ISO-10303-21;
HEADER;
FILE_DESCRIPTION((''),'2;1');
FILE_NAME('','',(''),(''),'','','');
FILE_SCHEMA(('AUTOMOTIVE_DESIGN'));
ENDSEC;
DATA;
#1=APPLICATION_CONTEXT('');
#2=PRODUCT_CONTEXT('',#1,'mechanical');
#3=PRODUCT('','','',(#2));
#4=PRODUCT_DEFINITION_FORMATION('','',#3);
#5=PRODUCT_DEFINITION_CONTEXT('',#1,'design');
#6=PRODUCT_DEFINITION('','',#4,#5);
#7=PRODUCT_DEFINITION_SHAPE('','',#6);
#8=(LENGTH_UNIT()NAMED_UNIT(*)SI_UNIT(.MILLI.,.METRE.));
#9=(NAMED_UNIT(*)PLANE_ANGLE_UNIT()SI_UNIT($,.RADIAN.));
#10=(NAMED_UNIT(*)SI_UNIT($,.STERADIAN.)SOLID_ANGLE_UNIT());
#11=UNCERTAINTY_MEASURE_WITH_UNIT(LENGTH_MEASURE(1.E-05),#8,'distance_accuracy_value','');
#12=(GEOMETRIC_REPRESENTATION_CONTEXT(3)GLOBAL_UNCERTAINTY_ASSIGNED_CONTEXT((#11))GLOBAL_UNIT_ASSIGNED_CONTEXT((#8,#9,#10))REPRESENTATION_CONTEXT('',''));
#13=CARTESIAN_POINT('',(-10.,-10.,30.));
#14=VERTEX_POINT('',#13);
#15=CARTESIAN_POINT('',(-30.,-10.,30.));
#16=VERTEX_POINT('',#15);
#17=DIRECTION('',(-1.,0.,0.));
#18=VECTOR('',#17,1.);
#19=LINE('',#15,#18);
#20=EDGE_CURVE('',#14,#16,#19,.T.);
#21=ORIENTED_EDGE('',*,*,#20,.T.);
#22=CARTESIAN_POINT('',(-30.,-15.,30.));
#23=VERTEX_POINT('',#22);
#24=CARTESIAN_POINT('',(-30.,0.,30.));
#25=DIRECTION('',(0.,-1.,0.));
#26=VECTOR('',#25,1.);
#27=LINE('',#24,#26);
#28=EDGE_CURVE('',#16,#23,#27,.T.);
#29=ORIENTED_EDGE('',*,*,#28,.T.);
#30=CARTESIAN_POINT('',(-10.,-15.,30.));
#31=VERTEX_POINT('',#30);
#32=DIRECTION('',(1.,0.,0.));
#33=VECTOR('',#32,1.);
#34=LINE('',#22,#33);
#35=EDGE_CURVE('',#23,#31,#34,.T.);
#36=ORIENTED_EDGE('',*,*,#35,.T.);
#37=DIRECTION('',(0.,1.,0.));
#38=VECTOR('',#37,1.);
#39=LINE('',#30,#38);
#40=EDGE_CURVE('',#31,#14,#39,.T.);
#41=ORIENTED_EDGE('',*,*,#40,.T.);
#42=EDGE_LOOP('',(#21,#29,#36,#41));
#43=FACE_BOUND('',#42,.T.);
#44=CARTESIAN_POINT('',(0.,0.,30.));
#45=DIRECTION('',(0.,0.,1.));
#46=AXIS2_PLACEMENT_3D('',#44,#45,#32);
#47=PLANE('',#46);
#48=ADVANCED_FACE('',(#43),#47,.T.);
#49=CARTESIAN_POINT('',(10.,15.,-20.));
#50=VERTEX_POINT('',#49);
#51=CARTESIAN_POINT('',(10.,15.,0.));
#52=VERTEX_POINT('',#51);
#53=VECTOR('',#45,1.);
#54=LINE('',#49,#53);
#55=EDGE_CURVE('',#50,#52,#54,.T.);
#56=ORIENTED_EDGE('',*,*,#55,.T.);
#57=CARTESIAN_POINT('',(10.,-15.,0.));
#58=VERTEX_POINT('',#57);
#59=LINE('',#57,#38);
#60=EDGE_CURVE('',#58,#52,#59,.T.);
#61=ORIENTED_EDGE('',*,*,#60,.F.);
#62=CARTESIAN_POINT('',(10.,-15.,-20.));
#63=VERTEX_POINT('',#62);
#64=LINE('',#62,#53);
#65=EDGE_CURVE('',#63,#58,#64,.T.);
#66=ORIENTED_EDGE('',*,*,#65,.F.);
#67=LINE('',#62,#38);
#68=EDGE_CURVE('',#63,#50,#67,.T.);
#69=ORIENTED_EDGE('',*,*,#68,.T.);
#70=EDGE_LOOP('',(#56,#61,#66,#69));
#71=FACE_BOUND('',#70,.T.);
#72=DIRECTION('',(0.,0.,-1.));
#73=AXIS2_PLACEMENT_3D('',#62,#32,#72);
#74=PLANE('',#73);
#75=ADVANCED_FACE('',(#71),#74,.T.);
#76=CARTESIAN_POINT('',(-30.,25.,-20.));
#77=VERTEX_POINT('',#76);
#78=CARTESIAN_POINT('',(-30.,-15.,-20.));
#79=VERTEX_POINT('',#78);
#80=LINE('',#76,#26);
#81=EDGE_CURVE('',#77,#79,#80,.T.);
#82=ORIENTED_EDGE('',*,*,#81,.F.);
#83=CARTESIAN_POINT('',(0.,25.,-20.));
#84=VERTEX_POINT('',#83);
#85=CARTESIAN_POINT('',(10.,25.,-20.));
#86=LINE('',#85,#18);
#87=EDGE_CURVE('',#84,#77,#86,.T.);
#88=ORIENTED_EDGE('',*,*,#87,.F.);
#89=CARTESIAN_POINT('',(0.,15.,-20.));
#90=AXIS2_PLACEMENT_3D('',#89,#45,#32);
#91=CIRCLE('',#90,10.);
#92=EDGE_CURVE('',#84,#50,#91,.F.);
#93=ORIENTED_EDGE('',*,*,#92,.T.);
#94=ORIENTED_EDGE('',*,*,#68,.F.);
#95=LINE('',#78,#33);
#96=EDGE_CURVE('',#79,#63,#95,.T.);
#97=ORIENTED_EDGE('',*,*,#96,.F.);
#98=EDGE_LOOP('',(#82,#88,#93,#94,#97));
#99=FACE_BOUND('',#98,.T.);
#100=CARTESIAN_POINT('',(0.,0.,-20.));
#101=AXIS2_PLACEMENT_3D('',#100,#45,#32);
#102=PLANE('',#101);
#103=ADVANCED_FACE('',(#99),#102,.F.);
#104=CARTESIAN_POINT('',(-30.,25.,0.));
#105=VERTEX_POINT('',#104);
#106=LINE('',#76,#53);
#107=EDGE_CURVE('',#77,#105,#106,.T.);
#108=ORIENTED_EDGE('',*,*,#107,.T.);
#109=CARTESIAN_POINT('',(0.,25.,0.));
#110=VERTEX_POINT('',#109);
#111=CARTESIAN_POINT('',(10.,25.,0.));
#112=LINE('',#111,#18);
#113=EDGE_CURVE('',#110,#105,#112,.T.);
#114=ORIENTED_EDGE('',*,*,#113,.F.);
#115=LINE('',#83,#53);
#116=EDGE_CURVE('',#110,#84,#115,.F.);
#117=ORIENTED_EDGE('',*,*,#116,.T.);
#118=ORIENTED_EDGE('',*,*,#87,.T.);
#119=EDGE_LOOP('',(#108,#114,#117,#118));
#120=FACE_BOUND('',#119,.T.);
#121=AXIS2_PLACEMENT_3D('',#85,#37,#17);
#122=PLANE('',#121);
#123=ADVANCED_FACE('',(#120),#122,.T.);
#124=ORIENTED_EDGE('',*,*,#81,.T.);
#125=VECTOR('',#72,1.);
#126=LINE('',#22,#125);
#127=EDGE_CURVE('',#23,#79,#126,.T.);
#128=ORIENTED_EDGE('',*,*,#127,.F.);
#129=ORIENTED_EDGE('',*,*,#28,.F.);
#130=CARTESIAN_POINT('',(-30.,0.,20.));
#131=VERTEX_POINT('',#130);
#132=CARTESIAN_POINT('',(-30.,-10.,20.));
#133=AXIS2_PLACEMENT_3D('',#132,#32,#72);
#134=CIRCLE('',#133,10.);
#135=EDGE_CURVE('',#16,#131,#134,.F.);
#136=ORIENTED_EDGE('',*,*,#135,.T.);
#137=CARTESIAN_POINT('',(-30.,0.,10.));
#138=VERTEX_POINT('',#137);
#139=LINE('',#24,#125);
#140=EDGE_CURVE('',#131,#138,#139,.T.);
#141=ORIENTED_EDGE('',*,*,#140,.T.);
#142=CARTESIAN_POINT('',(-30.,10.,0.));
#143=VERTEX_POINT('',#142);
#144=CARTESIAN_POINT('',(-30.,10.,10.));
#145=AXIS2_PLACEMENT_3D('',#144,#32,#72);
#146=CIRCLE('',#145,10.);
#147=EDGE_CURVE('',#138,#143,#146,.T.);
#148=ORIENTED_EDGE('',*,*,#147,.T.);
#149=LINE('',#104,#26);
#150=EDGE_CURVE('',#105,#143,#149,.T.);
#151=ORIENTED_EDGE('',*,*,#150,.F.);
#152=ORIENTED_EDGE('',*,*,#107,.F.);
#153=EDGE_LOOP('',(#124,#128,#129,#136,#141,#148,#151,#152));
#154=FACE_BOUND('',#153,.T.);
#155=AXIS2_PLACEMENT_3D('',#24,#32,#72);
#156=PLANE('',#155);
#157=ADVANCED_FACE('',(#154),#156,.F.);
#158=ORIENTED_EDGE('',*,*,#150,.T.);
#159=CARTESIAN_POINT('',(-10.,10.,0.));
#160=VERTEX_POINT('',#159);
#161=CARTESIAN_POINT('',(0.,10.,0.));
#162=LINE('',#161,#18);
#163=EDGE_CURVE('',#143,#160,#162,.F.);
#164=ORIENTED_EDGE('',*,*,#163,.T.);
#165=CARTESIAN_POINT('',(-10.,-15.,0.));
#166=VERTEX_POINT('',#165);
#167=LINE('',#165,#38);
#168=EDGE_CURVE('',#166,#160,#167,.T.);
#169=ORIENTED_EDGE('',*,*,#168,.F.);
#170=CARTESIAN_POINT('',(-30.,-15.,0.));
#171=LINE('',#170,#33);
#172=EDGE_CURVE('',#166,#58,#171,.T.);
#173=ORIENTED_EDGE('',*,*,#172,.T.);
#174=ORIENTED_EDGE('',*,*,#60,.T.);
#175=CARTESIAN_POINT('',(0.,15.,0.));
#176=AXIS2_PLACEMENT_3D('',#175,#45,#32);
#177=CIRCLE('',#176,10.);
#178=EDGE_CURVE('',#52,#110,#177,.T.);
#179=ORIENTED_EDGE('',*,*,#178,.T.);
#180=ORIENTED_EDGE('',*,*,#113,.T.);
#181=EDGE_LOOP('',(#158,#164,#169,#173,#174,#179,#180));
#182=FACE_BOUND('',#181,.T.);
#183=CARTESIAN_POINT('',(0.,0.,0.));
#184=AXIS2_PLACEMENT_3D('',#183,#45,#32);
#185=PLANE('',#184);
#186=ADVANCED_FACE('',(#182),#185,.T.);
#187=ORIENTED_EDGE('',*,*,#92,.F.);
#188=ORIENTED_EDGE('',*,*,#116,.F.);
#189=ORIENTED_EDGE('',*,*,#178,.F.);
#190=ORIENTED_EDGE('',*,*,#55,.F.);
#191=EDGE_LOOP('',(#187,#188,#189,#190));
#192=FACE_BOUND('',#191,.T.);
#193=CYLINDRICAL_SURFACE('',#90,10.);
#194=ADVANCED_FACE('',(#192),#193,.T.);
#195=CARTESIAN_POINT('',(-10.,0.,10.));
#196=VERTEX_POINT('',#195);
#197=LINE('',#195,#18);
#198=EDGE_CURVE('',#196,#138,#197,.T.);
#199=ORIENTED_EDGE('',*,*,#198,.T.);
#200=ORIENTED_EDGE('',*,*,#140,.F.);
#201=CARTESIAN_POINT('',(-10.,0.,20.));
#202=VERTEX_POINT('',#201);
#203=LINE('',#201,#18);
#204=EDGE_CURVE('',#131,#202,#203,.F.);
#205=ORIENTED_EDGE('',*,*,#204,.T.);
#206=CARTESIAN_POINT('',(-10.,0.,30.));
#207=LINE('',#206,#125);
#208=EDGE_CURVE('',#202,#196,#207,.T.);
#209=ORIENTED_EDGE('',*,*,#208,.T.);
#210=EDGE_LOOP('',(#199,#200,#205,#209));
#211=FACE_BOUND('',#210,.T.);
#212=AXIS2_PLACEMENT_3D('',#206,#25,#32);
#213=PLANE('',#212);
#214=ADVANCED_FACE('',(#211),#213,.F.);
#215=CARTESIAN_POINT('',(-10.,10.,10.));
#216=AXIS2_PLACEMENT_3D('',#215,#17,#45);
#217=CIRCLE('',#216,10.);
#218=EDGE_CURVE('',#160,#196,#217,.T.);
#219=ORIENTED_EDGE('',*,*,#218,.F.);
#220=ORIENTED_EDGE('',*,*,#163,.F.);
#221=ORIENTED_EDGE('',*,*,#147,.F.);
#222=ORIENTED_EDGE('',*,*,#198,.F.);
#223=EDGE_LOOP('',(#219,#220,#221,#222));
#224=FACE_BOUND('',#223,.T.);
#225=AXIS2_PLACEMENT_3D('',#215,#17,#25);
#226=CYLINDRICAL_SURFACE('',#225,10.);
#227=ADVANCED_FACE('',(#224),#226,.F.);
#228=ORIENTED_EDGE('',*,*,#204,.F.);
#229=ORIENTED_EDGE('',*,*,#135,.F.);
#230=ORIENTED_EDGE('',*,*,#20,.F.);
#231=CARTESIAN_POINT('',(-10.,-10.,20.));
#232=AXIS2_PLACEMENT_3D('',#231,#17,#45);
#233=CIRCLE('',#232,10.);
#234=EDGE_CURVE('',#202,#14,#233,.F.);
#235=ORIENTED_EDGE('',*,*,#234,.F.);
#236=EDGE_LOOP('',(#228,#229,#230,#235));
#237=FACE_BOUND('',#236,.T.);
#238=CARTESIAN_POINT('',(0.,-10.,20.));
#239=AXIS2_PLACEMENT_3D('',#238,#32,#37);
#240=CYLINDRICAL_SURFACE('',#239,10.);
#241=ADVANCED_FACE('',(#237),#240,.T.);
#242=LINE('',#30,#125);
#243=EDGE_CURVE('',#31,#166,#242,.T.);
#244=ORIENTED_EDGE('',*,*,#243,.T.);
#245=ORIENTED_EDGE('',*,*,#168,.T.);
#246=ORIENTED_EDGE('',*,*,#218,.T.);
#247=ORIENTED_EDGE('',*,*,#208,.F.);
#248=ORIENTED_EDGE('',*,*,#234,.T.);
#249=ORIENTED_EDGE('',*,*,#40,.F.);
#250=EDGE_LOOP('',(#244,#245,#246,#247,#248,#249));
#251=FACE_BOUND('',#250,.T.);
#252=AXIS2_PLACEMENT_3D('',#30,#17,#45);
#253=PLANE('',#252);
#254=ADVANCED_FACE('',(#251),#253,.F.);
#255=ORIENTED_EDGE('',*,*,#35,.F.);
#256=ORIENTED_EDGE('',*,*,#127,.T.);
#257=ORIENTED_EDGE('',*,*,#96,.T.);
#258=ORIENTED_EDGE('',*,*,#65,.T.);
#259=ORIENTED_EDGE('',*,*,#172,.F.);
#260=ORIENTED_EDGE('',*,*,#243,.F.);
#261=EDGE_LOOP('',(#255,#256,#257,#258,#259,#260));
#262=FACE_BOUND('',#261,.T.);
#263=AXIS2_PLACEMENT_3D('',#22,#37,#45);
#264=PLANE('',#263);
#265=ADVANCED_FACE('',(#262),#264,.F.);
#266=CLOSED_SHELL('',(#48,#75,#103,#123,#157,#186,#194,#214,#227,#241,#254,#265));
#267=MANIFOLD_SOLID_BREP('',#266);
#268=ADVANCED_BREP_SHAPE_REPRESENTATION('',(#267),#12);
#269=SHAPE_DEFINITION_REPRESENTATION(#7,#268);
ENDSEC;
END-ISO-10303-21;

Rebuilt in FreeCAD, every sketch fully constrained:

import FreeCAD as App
import Part
import Sketcher
from FreeCAD import Vector
Q = App.Units.Quantity


def edges_at(feature, points):
    """Names of the edges that pass closest to the given points."""
    edges = feature.Shape.Edges
    near = lambda p: min(range(len(edges)), key=lambda i: edges[i].distToShape(Part.Vertex(*p))[0])
    return sorted({f"Edge{near(p) + 1}" for p in points})

doc = App.newDocument("Part")
body = doc.addObject("PartDesign::Body", "Body")

# Sketch on XY plane
sketch1 = doc.addObject("Sketcher::SketchObject", "Sketch")
body.addObject(sketch1)
sketch1.AttachmentSupport = (doc.XY_Plane, [""])
sketch1.MapMode = "FlatFace"
sketch1.addGeometry([
    Part.LineSegment(Vector(-30, 0, 0), Vector(-30, -15, 0)),
    Part.LineSegment(Vector(-30, -15, 0), Vector(-10, -15, 0)),
    Part.LineSegment(Vector(-10, -15, 0), Vector(-10, 0, 0)),
    Part.LineSegment(Vector(-10, 0, 0), Vector(-30, 0, 0)),
], False)
sketch1.addConstraint([
    Sketcher.Constraint("Coincident", 0, 2, 1, 1),
    Sketcher.Constraint("Coincident", 1, 2, 2, 1),
    Sketcher.Constraint("Coincident", 2, 2, 3, 1),
    Sketcher.Constraint("Coincident", 3, 2, 0, 1),
    Sketcher.Constraint("Vertical", 0),
    Sketcher.Constraint("Horizontal", 1),
    Sketcher.Constraint("Vertical", 2),
    Sketcher.Constraint("Horizontal", 3),
    Sketcher.Constraint("PointOnObject", 2, 2, -1),
    Sketcher.Constraint("DistanceX", 1, 1, 1, 2, Q("20 mm")),
    Sketcher.Constraint("DistanceY", 0, 2, 0, 1, Q("15 mm")),
    Sketcher.Constraint("DistanceX", 0, 2, -1, 1, Q("30 mm")),
])
pad1 = doc.addObject("PartDesign::Pad", "Pad")
body.addObject(pad1)
pad1.Profile = sketch1
pad1.Length = 30

# Sketch on XY plane
sketch2 = doc.addObject("Sketcher::SketchObject", "Sketch001")
body.addObject(sketch2)
sketch2.AttachmentSupport = (doc.XY_Plane, [""])
sketch2.MapMode = "FlatFace"
sketch2.addGeometry([
    Part.LineSegment(Vector(-30, 25, 0), Vector(-30, -15, 0)),
    Part.LineSegment(Vector(-30, -15, 0), Vector(10, -15, 0)),
    Part.LineSegment(Vector(10, -15, 0), Vector(10, 25, 0)),
    Part.LineSegment(Vector(10, 25, 0), Vector(-30, 25, 0)),
], False)
sketch2.addConstraint([
    Sketcher.Constraint("Coincident", 0, 2, 1, 1),
    Sketcher.Constraint("Coincident", 1, 2, 2, 1),
    Sketcher.Constraint("Coincident", 2, 2, 3, 1),
    Sketcher.Constraint("Coincident", 3, 2, 0, 1),
    Sketcher.Constraint("Vertical", 0),
    Sketcher.Constraint("Horizontal", 1),
    Sketcher.Constraint("Vertical", 2),
    Sketcher.Constraint("Horizontal", 3),
    Sketcher.Constraint("Equal", 3, 0),
    Sketcher.Constraint("DistanceX", 1, 1, 1, 2, Q("40 mm")),
    Sketcher.Constraint("DistanceX", 0, 2, -1, 1, Q("30 mm")),
    Sketcher.Constraint("DistanceY", 0, 2, -1, 1, Q("15 mm")),
])
pad2 = doc.addObject("PartDesign::Pad", "Pad001")
body.addObject(pad2)
pad2.Profile = sketch2
pad2.Length = 20
pad2.Reversed = True
doc.recompute()

fillet = doc.addObject("PartDesign::Fillet", "Fillet")
body.addObject(fillet)
fillet.Base = (pad2, edges_at(pad2, [(10, 25, -10), (-20, 0, 30), (-20, 0, 0)]))
fillet.Radius = 10

doc.recompute()
